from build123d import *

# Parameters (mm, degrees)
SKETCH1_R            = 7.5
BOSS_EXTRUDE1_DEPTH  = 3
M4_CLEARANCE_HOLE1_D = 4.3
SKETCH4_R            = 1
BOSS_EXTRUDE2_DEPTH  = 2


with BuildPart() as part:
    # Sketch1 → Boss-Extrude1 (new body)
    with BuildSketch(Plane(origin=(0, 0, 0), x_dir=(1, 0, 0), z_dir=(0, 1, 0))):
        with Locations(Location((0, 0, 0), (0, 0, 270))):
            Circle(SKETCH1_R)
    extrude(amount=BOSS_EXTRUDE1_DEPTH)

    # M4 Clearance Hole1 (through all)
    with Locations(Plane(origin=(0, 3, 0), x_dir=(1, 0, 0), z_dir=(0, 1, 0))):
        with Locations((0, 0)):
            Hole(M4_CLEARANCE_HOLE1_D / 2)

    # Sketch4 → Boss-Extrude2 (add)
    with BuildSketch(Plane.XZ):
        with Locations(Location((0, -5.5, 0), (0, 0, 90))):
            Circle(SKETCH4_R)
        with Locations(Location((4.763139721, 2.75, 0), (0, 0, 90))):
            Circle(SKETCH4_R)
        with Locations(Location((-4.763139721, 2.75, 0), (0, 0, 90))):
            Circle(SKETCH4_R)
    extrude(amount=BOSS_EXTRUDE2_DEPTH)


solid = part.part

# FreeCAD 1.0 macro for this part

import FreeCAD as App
import Part
import Sketcher
Q = App.Units.Quantity

doc = App.newDocument("Part")
params = doc.addObject("Spreadsheet::Sheet", "Params")
for row, (alias, value) in enumerate([
    ("sketch1_diameter", "15 mm"),
    ("pad1_length", "3 mm"),
    ("sketch2_diameter", "4.3 mm"),
    ("hole_diameter", "4.3 mm"),
    ("sketch3_diameter", "2 mm"),
    ("pad2_length", "2 mm"),
], start=1):
    params.set(f"A{row}", alias)
    params.set(f"B{row}", "=" + value)
    params.setAlias(f"B{row}", alias)

body = doc.addObject("PartDesign::Body", "Body")

sketch1 = doc.addObject("Sketcher::SketchObject", "Sketch")
body.addObject(sketch1)
sketch1.AttachmentSupport = (doc.XZ_Plane, [""])
sketch1.MapMode = "FlatFace"
sketch1.addGeometry(Part.Circle(App.Vector(0, 0, 0), App.Vector(0, 0, 1), 8), False)
sketch1.addConstraint(Sketcher.Constraint("Coincident", 0, 3, -1, 1))
sketch1.addConstraint(Sketcher.Constraint("Diameter", 0, Q("15 mm")))
sketch1.setExpression("Constraints[1]", "Params.sketch1_diameter")
pad1 = doc.addObject("PartDesign::Pad", "Pad")
body.addObject(pad1)
pad1.Profile = sketch1
pad1.setExpression("Length", "Params.pad1_length")
pad1.Reversed = True

sketch2 = doc.addObject("Sketcher::SketchObject", "Sketch001")
body.addObject(sketch2)
sketch2.AttachmentSupport = (doc.XZ_Plane, [""])
sketch2.MapMode = "FlatFace"
sketch2.AttachmentOffset = App.Placement(App.Vector(0, 0, -3), App.Rotation())
sketch2.addGeometry(Part.Circle(App.Vector(0, 0, 0), App.Vector(0, 0, 1), 2.1), False)
sketch2.addConstraint(Sketcher.Constraint("Coincident", 0, 3, -1, 1))
sketch2.addConstraint(Sketcher.Constraint("Diameter", 0, Q("4.3 mm")))
sketch2.setExpression("Constraints[1]", "Params.sketch2_diameter")
doc.recompute()
hole = doc.addObject("PartDesign::Hole", "Hole")
body.addObject(hole)
hole.Profile = sketch2
hole.ThreadType = "None"
hole.setExpression("Diameter", "Params.hole_diameter")
hole.DepthType = "ThroughAll"
hole.Reversed = True

sketch3 = doc.addObject("Sketcher::SketchObject", "Sketch002")
body.addObject(sketch3)
sketch3.AttachmentSupport = (doc.XZ_Plane, [""])
sketch3.MapMode = "FlatFace"
sketch3.addGeometry(Part.Circle(App.Vector(0, -5.5, 0), App.Vector(0, 0, 1), 1), False)
sketch3.addGeometry(Part.Circle(App.Vector(4.8, 2.8, 0), App.Vector(0, 0, 1), 1), False)
sketch3.addGeometry(Part.Circle(App.Vector(-4.8, 2.8, 0), App.Vector(0, 0, 1), 1), False)
sketch3.addConstraint(Sketcher.Constraint("Equal", 0, 1))
sketch3.addConstraint(Sketcher.Constraint("Equal", 1, 2))
sketch3.addConstraint(Sketcher.Constraint("Symmetric", 1, 3, 2, 3, -2))
sketch3.addConstraint(Sketcher.Constraint("PointOnObject", 0, 3, -2))
sketch3.addConstraint(Sketcher.Constraint("Diameter", 0, Q("2 mm")))
sketch3.addConstraint(Sketcher.Constraint("DistanceY", 0, 3, -1, 1, Q("5.5 mm")))
sketch3.addConstraint(Sketcher.Constraint("DistanceY", -1, 1, 1, 3, Q("2.75 mm")))
sketch3.addConstraint(Sketcher.Constraint("DistanceX", -1, 1, 1, 3, Q("4.76314 mm")))
sketch3.setExpression("Constraints[4]", "Params.sketch3_diameter")
pad2 = doc.addObject("PartDesign::Pad", "Pad001")
body.addObject(pad2)
pad2.Profile = sketch3
pad2.setExpression("Length", "Params.pad2_length")

doc.recompute()
